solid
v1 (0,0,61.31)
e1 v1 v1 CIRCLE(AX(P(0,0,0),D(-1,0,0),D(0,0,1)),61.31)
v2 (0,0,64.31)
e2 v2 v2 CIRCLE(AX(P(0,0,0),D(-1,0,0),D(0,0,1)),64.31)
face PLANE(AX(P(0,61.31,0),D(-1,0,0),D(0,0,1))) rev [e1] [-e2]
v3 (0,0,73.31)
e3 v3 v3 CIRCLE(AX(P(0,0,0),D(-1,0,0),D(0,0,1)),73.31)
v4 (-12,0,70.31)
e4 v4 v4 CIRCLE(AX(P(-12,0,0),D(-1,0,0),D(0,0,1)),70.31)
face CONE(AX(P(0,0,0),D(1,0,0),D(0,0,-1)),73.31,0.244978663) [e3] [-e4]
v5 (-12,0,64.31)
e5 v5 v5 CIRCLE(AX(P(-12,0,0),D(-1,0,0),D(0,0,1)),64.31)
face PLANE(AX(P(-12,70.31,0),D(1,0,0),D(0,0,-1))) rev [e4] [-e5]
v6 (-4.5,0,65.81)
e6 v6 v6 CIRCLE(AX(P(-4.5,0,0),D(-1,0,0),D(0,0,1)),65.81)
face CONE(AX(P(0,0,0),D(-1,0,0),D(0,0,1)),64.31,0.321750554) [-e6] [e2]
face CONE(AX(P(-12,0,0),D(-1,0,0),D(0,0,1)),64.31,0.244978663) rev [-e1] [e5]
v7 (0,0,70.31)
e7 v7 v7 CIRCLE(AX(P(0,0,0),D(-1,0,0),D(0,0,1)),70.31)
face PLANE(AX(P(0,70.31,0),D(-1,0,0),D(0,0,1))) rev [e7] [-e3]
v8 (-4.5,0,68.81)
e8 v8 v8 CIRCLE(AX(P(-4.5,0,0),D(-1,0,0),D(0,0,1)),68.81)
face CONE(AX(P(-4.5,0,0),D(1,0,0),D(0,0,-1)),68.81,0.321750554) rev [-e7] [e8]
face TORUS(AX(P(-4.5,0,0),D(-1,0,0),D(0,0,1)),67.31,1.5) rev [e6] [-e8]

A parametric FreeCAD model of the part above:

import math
import FreeCAD as App
import Part
import Sketcher
from FreeCAD import Vector

doc = App.newDocument("Part")
body = doc.addObject("PartDesign::Body", "Body")

# Sketch on XY plane
sketch1 = doc.addObject("Sketcher::SketchObject", "Sketch")
body.addObject(sketch1)
sketch1.AttachmentSupport = (doc.XY_Plane, [""])
sketch1.MapMode = "FlatFace"
sketch1.addGeometry([
    Part.LineSegment(Vector(0, 73.31, 0), Vector(-12, 70.31, 0)),  # 0
    Part.LineSegment(Vector(-12, 70.31, 0), Vector(-12, 64.31, 0)),  # 1
    Part.LineSegment(Vector(-12, 64.31, 0), Vector(0, 61.31, 0)),  # 2
    Part.LineSegment(Vector(0, 61.31, 0), Vector(0, 64.31, 0)),  # 3
    Part.LineSegment(Vector(0, 64.31, 0), Vector(-4.5, 65.81, 0)),  # 4
    Part.ArcOfCircle(Part.Circle(Vector(-4.5, 67.31, 0), Vector(0, 0, 1), 1.5), math.radians(90), math.radians(270)),  # 5
    Part.LineSegment(Vector(-4.5, 68.81, 0), Vector(0, 70.31, 0)),  # 6
    Part.LineSegment(Vector(0, 70.31, 0), Vector(0, 73.31, 0)),  # 7
], False)
sketch1.addConstraint([
    Sketcher.Constraint("Coincident", 0, 2, 1, 1),
    Sketcher.Constraint("Coincident", 1, 2, 2, 1),
    Sketcher.Constraint("Coincident", 2, 2, 3, 1),
    Sketcher.Constraint("Coincident", 3, 2, 4, 1),
    Sketcher.Constraint("Coincident", 4, 2, 5, 2),
    Sketcher.Constraint("Coincident", 5, 1, 6, 1),
    Sketcher.Constraint("Coincident", 6, 2, 7, 1),
    Sketcher.Constraint("Coincident", 7, 2, 0, 1),
    Sketcher.Constraint("Vertical", 1),
    Sketcher.Constraint("Vertical", 3),
    Sketcher.Constraint("Vertical", 7),
    Sketcher.Constraint("PointOnObject", 2, 2, -2),
    Sketcher.Constraint("PointOnObject", 6, 2, -2),
    Sketcher.Constraint("Horizontal", 1, 2, 3, 2),
    Sketcher.Constraint("Horizontal", 0, 2, 6, 2),
    Sketcher.Constraint("Vertical", 5, 3, 4, 2),
    Sketcher.Constraint("Vertical", 4, 2, 5, 1),
    Sketcher.Constraint("Equal", 3, 7),
    Sketcher.Constraint("Equal", 4, 6),
    Sketcher.Constraint("Radius", 5, 1.5),
    Sketcher.Constraint("DistanceY", 1, 2, 1, 1, 6.0),
    Sketcher.Constraint("DistanceY", 3, 1, 3, 2, 3.0),
    Sketcher.Constraint("DistanceX", 0, 2, -1, 1, 12.0),
    Sketcher.Constraint("DistanceX", 5, 3, -1, 1, 4.5),
    Sketcher.Constraint("DistanceY", -1, 1, 5, 3, 67.31),
])
revolution = doc.addObject("PartDesign::Revolution", "Revolution")
body.addObject(revolution)
revolution.Profile = sketch1
revolution.ReferenceAxis = (sketch1, ["H_Axis"])
revolution.Angle = 360

doc.recompute()
